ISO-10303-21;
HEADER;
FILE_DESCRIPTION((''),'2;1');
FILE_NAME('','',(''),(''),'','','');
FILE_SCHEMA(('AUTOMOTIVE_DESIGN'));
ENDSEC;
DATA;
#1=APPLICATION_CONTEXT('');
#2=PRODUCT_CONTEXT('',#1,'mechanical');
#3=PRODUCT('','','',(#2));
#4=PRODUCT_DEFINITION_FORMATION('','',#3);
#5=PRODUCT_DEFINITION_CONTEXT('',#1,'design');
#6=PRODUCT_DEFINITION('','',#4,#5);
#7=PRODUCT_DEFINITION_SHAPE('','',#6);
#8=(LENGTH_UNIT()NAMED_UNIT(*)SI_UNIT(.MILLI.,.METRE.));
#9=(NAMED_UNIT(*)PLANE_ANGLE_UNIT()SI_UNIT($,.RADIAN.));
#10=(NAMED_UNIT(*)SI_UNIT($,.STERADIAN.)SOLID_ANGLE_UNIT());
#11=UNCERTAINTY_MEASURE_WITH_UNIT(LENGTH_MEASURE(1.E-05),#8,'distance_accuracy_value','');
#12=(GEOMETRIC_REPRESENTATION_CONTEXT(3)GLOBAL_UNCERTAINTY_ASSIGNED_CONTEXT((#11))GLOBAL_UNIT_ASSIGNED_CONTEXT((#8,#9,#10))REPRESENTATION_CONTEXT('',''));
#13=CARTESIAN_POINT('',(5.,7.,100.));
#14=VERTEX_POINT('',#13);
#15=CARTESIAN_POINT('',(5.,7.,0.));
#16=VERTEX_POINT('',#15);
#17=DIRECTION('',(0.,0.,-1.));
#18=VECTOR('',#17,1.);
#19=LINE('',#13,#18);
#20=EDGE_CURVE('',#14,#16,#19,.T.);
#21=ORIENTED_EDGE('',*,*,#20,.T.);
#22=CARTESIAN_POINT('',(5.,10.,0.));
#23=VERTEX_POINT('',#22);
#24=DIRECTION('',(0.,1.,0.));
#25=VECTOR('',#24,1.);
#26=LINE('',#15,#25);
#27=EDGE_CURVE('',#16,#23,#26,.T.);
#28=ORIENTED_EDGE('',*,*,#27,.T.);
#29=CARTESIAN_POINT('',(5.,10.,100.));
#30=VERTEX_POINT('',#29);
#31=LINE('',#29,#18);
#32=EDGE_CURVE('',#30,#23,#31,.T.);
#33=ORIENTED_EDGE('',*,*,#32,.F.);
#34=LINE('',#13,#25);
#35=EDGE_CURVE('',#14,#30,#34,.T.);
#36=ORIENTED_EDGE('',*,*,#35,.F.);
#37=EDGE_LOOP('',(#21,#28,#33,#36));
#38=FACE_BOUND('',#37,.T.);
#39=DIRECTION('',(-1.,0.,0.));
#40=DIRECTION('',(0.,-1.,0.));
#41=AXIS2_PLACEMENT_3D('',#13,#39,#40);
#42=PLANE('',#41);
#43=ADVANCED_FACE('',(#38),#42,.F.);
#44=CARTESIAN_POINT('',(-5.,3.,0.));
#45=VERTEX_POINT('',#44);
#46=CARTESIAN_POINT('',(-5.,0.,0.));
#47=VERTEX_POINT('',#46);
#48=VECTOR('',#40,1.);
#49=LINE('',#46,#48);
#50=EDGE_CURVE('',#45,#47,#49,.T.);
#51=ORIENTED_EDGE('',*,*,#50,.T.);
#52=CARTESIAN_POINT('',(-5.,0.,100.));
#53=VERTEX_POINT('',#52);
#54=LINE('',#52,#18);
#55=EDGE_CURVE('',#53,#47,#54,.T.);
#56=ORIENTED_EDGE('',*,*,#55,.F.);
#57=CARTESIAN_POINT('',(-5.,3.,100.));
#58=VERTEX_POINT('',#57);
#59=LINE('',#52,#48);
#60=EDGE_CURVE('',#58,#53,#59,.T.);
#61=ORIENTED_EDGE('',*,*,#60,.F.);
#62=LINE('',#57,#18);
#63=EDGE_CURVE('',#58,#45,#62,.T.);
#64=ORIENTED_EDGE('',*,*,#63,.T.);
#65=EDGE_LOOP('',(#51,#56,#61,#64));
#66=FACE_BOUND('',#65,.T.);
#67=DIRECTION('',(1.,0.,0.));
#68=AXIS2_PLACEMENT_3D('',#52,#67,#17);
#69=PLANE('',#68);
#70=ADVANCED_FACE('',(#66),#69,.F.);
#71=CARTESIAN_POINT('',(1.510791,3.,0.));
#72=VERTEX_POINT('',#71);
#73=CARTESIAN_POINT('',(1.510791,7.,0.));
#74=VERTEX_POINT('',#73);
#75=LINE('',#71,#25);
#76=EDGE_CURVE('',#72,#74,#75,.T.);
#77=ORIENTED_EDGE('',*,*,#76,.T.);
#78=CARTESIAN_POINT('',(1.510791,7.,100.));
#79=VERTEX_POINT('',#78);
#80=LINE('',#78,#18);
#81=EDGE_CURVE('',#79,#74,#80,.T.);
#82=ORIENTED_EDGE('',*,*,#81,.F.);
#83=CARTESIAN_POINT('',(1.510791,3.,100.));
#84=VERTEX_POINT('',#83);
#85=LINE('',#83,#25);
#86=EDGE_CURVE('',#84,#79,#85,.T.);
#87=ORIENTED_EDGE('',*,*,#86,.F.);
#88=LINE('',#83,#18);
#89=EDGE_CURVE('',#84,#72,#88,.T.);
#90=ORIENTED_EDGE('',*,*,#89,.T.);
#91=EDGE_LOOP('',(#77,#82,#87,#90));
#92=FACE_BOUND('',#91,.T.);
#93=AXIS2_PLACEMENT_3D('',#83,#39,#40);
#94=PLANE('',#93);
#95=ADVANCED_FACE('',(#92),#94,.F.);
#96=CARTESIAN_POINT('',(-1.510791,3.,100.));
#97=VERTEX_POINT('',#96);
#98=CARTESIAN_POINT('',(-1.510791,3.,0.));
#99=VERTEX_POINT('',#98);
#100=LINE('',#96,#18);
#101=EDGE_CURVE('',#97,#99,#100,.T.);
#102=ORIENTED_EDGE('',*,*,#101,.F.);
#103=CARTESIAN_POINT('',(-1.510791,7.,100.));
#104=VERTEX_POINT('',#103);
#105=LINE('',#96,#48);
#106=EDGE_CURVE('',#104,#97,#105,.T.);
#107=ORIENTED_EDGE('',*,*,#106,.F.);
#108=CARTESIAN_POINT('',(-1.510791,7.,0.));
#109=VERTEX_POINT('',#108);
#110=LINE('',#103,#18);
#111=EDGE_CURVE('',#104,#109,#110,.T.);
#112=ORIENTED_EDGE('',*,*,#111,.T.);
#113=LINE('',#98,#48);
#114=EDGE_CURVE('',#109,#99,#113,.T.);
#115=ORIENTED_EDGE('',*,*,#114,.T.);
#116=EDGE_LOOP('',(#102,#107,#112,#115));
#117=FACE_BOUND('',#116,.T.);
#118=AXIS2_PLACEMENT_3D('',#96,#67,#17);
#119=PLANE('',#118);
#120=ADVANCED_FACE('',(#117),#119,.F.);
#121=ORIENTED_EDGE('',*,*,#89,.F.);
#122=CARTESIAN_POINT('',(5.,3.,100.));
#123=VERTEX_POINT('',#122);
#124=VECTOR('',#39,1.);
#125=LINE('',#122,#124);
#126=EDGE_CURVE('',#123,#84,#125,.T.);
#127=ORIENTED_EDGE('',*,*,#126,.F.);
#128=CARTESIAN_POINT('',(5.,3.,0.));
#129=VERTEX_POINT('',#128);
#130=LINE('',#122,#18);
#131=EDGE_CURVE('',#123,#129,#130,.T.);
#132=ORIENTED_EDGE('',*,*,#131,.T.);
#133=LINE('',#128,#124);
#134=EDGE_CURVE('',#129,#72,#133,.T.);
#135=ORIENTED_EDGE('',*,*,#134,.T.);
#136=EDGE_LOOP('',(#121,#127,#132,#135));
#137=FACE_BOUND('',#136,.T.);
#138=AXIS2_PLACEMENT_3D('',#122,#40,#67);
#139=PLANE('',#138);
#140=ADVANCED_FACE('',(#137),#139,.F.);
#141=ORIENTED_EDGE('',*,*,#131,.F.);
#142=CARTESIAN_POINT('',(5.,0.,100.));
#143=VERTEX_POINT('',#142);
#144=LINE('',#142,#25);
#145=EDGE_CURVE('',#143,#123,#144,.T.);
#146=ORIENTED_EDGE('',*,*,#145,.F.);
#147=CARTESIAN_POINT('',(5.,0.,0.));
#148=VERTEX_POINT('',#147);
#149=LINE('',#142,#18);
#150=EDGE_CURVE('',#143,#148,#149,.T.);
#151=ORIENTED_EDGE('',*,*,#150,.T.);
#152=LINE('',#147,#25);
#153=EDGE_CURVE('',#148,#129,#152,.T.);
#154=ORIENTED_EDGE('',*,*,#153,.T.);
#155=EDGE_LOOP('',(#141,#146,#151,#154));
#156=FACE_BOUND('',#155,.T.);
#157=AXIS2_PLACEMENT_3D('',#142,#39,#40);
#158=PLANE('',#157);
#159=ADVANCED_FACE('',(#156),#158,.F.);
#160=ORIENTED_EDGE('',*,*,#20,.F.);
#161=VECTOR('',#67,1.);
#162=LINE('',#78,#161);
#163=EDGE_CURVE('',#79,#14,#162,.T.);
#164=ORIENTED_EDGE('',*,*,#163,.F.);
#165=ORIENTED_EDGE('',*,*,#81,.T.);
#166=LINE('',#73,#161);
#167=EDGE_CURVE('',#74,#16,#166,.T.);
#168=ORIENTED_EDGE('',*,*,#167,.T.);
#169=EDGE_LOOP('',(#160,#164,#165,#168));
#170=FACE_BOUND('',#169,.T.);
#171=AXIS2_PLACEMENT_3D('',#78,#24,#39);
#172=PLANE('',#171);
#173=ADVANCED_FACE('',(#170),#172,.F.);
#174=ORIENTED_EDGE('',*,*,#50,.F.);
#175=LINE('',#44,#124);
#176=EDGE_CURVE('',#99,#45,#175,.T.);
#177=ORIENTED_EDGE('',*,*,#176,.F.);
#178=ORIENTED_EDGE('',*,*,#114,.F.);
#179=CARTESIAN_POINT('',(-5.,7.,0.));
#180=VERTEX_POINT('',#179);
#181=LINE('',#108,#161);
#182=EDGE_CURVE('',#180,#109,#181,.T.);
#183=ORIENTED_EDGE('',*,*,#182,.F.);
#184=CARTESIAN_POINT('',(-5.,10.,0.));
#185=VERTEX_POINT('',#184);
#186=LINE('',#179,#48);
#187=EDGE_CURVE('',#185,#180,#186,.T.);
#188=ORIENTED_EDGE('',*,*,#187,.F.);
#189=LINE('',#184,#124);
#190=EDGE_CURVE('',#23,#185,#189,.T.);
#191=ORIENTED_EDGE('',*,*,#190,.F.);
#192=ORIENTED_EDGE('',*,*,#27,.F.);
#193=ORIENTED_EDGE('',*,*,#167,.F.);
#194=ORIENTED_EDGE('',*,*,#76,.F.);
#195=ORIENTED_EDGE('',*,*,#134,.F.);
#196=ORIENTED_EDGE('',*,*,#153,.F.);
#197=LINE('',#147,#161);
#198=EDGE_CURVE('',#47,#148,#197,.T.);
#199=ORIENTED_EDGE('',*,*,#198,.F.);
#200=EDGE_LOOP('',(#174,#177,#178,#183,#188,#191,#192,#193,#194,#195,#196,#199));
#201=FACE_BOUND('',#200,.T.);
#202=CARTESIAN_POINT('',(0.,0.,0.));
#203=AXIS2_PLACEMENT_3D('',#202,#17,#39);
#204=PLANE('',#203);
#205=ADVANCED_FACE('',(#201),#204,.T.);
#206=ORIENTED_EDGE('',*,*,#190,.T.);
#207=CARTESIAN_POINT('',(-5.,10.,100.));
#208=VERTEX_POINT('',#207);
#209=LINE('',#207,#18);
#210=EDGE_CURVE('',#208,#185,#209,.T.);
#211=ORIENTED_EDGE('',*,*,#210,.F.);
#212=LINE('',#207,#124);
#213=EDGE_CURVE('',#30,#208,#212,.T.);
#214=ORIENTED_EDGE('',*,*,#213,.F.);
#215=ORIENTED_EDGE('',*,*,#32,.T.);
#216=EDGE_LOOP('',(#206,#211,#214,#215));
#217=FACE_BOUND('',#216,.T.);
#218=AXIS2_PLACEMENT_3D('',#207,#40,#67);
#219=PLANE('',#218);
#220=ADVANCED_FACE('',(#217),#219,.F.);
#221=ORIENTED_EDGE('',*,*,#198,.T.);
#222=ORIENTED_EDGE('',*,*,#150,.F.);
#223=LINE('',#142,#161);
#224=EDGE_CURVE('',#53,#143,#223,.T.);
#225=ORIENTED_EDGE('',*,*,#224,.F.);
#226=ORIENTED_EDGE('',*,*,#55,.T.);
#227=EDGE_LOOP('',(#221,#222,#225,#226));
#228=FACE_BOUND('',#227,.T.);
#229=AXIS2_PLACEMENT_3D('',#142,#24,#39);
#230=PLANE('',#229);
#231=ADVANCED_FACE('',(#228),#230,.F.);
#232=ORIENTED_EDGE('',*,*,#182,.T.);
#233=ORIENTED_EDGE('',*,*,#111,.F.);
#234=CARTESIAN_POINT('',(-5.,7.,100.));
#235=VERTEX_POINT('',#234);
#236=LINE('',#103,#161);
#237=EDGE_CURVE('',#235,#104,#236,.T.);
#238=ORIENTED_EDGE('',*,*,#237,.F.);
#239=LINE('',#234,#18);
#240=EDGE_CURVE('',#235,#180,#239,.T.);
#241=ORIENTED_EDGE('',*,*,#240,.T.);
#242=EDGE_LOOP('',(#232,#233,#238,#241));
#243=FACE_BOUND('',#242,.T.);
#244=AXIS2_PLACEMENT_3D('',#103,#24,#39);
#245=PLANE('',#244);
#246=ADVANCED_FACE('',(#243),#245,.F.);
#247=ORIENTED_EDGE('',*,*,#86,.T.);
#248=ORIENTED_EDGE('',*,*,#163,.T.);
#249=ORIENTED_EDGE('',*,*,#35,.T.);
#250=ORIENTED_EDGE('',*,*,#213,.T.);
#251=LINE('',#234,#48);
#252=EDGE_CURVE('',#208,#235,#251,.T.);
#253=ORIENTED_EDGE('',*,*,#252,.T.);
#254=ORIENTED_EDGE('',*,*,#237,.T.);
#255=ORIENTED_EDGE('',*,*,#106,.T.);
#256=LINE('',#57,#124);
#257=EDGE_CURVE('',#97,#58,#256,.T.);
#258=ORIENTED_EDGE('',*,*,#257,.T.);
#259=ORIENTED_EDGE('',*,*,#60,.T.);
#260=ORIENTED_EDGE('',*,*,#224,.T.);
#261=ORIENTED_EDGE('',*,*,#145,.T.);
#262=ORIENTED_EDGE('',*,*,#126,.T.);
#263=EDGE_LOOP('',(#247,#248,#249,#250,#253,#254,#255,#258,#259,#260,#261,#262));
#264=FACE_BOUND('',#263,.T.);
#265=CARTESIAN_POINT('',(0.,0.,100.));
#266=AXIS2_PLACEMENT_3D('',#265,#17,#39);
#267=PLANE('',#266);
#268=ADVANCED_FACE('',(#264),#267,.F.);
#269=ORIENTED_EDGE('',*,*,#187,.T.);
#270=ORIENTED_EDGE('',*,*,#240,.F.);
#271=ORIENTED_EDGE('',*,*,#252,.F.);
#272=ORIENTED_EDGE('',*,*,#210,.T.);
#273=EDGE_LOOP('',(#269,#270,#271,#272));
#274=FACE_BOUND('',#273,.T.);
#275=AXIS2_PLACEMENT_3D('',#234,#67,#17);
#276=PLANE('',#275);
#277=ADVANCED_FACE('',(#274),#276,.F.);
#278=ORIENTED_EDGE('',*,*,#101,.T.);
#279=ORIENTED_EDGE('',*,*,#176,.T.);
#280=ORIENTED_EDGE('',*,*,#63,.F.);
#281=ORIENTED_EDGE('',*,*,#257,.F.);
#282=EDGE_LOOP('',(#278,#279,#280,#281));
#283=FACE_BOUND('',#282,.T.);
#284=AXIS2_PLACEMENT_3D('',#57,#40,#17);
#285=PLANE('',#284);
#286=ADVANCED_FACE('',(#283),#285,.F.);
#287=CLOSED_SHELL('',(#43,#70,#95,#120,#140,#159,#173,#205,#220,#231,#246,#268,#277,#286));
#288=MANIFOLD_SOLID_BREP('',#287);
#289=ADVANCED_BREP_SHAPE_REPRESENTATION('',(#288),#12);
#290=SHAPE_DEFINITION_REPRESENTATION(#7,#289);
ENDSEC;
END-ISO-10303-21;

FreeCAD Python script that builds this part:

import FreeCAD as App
import Part
import Sketcher
from FreeCAD import Vector
Q = App.Units.Quantity


def add_polygon(sketch, points):
    """Adds a closed chain of lines whose ends are joined by coincident constraints."""
    first, n = sketch.GeometryCount, len(points)
    for a, b in zip(points, points[1:] + points[:1]):
        sketch.addGeometry(Part.LineSegment(App.Vector(*a, 0), App.Vector(*b, 0)), False)
    for i in range(n):
        sketch.addConstraint(Sketcher.Constraint("Coincident", first + i, 2, first + (i + 1) % n, 1))

doc = App.newDocument("Part")
body = doc.addObject("PartDesign::Body", "Body")

sketch1 = body.newObject("Sketcher::SketchObject", "Sketch")
sketch1.AttachmentSupport = (doc.getObject("XY_Plane"), [""])
sketch1.MapMode = "FlatFace"
add_polygon(sketch1, [(-5, 0), (5, 0), (5, 3), (1.5, 3), (1.5, 7), (5, 7), (5, 10), (-5, 10), (-5, 7), (-1.5, 7), (-1.5, 3), (-5, 3)])
sketch1.addConstraint([
    Sketcher.Constraint("Horizontal", 0),
    Sketcher.Constraint("Vertical", 1),
    Sketcher.Constraint("Horizontal", 2),
    Sketcher.Constraint("Vertical", 3),
    Sketcher.Constraint("Horizontal", 4),
    Sketcher.Constraint("Vertical", 5),
    Sketcher.Constraint("Horizontal", 6),
    Sketcher.Constraint("Vertical", 7),
    Sketcher.Constraint("Horizontal", 8),
    Sketcher.Constraint("Vertical", 9),
    Sketcher.Constraint("Horizontal", 10),
    Sketcher.Constraint("Vertical", 11),
    Sketcher.Constraint("Symmetric", 0, 2, 11, 2, -1, 1),
    Sketcher.Constraint("Symmetric", 4, 2, 7, 2, -2),
    Sketcher.Constraint("Symmetric", 2, 2, 9, 2, -2),
    Sketcher.Constraint("Vertical", 1, 2, 4, 2),
    Sketcher.Constraint("Equal", 1, 5),
    Sketcher.Constraint("DistanceX", 0, 1, 0, 2, Q("10 mm")),
    Sketcher.Constraint("DistanceY", 1, 1, 1, 2, Q("3 mm")),
    Sketcher.Constraint("DistanceY", 3, 1, 3, 2, Q("4 mm")),
    Sketcher.Constraint("DistanceX", 2, 2, 2, 1, Q("3.489209 mm")),
])
pad1 = body.newObject("PartDesign::Pad", "Pad")
pad1.Profile = sketch1
pad1.Length = 100

doc.recompute()
